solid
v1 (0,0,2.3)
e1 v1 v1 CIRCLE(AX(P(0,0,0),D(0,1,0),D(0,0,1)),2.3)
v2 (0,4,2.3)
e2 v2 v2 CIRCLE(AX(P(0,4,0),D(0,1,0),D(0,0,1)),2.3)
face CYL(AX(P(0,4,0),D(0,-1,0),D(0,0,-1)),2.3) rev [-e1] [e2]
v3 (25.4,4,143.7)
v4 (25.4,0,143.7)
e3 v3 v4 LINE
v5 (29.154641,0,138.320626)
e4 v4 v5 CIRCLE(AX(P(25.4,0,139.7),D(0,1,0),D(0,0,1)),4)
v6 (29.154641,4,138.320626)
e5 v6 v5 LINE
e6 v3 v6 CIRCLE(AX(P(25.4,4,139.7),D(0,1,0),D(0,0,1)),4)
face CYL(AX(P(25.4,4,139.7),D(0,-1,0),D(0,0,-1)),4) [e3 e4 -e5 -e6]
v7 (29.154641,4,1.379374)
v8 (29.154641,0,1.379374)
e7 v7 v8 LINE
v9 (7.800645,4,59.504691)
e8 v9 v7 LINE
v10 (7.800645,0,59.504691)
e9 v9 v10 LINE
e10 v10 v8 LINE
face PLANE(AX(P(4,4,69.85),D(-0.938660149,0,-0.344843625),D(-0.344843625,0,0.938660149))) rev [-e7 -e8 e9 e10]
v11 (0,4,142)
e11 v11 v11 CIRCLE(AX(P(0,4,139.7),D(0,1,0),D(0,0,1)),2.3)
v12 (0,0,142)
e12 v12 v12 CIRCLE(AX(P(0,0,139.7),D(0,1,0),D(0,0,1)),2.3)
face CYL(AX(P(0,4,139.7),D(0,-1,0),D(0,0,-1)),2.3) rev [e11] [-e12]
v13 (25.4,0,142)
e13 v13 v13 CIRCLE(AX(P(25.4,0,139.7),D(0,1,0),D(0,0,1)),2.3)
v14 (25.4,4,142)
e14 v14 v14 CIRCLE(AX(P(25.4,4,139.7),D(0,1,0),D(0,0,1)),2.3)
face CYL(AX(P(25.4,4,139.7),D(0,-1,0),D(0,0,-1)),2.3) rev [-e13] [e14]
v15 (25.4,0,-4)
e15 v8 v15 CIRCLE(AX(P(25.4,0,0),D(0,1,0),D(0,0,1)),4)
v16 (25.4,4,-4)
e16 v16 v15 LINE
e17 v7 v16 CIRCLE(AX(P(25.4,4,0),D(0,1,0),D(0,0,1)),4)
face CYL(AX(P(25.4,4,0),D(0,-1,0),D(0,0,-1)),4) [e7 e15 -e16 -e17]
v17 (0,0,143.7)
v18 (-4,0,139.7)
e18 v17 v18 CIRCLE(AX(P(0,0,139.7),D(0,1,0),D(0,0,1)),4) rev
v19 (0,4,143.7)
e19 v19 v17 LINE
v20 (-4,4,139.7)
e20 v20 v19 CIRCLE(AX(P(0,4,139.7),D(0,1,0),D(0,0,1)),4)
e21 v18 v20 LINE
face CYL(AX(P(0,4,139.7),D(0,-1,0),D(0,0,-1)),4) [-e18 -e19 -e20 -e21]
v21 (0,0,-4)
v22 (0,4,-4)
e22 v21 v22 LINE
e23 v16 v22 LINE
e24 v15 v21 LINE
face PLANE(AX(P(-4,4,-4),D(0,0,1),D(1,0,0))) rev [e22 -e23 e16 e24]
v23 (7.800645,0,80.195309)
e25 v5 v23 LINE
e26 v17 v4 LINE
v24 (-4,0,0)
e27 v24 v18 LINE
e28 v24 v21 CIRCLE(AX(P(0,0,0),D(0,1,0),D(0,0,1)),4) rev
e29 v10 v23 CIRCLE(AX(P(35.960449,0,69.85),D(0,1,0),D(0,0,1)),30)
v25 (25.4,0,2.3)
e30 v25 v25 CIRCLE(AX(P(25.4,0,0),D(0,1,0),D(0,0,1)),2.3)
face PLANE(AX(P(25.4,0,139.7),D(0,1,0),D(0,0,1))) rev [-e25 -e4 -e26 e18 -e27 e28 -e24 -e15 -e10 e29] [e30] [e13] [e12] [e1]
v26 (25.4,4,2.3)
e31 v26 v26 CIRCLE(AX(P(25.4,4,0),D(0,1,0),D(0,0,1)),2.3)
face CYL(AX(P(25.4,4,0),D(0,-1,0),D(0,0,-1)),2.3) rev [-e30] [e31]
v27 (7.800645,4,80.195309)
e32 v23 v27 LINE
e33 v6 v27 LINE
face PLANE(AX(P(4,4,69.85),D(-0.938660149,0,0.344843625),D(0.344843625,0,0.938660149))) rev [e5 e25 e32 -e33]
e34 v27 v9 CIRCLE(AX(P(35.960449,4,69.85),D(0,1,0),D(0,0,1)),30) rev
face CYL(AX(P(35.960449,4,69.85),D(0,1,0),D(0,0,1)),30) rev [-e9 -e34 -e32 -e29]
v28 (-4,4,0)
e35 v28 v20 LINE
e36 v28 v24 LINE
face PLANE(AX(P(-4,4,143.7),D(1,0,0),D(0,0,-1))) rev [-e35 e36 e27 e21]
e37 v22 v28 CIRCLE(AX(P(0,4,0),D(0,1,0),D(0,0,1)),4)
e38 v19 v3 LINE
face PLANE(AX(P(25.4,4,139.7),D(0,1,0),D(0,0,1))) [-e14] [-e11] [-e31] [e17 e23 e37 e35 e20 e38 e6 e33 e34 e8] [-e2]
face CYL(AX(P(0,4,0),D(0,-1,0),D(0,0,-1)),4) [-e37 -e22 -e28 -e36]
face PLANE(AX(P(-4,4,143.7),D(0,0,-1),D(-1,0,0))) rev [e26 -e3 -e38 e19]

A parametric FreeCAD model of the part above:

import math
import FreeCAD as App
import Part
import Sketcher
Q = App.Units.Quantity


def edges_at(feature, points):
    """Names of the edges that pass closest to the given points."""
    edges = feature.Shape.Edges
    near = lambda p: min(range(len(edges)), key=lambda i: edges[i].distToShape(Part.Vertex(*p))[0])
    return sorted({f"Edge{near(p) + 1}" for p in points})

doc = App.newDocument("Part")
body = doc.addObject("PartDesign::Body", "Body")

# Sketch on XZ plane
sketch1 = body.newObject("Sketcher::SketchObject", "Sketch")
sketch1.AttachmentSupport = (doc.getObject("XZ_Plane"), [""])
sketch1.MapMode = "FlatFace"
sketch1.addGeometry([
    Part.LineSegment(App.Vector(-4, -4, 0), App.Vector(-4, 143.7, 0)),  # 0
    Part.LineSegment(App.Vector(-4, 143.7, 0), App.Vector(25.4, 143.7, 0)),  # 1
    Part.ArcOfCircle(Part.Circle(App.Vector(25.4, 139.7, 0), App.Vector(0, 0, 1), 4), math.radians(-20.17225), math.radians(90)),  # 2
    Part.LineSegment(App.Vector(29.154641, 138.320626, 0), App.Vector(4, 69.85, 0)),  # 3
    Part.LineSegment(App.Vector(4, 69.85, 0), App.Vector(29.154641, 1.379374, 0)),  # 4
    Part.ArcOfCircle(Part.Circle(App.Vector(25.4, 0, 0), App.Vector(0, 0, 1), 4), math.radians(-90), math.radians(20.17225)),  # 5
    Part.LineSegment(App.Vector(25.4, -4, 0), App.Vector(-4, -4, 0)),  # 6
    Part.Circle(App.Vector(25.4, 139.7, 0), App.Vector(0, 0, 1), 2.3),  # 7
    Part.Circle(App.Vector(0, 139.7, 0), App.Vector(0, 0, 1), 2.3),  # 8
    Part.Circle(App.Vector(25.4, 0, 0), App.Vector(0, 0, 1), 2.3),  # 9
    Part.Circle(App.Vector(0, 0, 0), App.Vector(0, 0, 1), 2.3),  # 10
], False)
sketch1.addConstraint([
    Sketcher.Constraint("Coincident", 0, 2, 1, 1),
    Sketcher.Constraint("Tangent", 1, 2, 2, 2),
    Sketcher.Constraint("Tangent", 2, 1, 3, 1),
    Sketcher.Constraint("Coincident", 3, 2, 4, 1),
    Sketcher.Constraint("Tangent", 4, 2, 5, 2),
    Sketcher.Constraint("Tangent", 5, 1, 6, 1),
    Sketcher.Constraint("Coincident", 6, 2, 0, 1),
    Sketcher.Constraint("Vertical", 0),
    Sketcher.Constraint("Horizontal", 1),
    Sketcher.Constraint("Horizontal", 6),
    Sketcher.Constraint("Coincident", 10, 3, -1, 1),
    Sketcher.Constraint("Coincident", 7, 3, 2, 3),
    Sketcher.Constraint("Coincident", 9, 3, 5, 3),
    Sketcher.Constraint("Equal", 2, 5),
    Sketcher.Constraint("Equal", 7, 8),
    Sketcher.Constraint("Equal", 8, 9),
    Sketcher.Constraint("Equal", 9, 10),
    Sketcher.Constraint("PointOnObject", 5, 3, -1),
    Sketcher.Constraint("PointOnObject", 8, 3, -2),
    Sketcher.Constraint("Horizontal", 7, 3, 8, 3),
    Sketcher.Constraint("Vertical", 2, 3, 5, 3),
    Sketcher.Constraint("Vertical", 2, 1, 4, 2),
    Sketcher.Constraint("Radius", 2, Q("4 mm")),
    Sketcher.Constraint("Diameter", 7, Q("4.6 mm")),
    Sketcher.Constraint("DistanceX", 1, 1, 1, 2, Q("29.4 mm")),
    Sketcher.Constraint("DistanceY", 0, 1, 0, 2, Q("147.7 mm")),
    Sketcher.Constraint("DistanceX", 0, 2, -1, 1, Q("4 mm")),
    Sketcher.Constraint("DistanceX", -1, 1, 3, 2, Q("4 mm")),
])
pad1 = body.newObject("PartDesign::Pad", "Pad")
pad1.Profile = sketch1
pad1.Length = 4
pad1.Reversed = True
doc.recompute()

fillet = body.newObject("PartDesign::Fillet", "Fillet")
fillet.Base = (pad1, edges_at(pad1, [(-4, 2, 143.7), (-4, 2, -4)]))
fillet.Radius = 4
doc.recompute()

fillet2 = body.newObject("PartDesign::Fillet", "Fillet001")
fillet2.Base = (fillet, edges_at(fillet, [(4, 2, 69.85)]))
fillet2.Radius = 30

doc.recompute()
